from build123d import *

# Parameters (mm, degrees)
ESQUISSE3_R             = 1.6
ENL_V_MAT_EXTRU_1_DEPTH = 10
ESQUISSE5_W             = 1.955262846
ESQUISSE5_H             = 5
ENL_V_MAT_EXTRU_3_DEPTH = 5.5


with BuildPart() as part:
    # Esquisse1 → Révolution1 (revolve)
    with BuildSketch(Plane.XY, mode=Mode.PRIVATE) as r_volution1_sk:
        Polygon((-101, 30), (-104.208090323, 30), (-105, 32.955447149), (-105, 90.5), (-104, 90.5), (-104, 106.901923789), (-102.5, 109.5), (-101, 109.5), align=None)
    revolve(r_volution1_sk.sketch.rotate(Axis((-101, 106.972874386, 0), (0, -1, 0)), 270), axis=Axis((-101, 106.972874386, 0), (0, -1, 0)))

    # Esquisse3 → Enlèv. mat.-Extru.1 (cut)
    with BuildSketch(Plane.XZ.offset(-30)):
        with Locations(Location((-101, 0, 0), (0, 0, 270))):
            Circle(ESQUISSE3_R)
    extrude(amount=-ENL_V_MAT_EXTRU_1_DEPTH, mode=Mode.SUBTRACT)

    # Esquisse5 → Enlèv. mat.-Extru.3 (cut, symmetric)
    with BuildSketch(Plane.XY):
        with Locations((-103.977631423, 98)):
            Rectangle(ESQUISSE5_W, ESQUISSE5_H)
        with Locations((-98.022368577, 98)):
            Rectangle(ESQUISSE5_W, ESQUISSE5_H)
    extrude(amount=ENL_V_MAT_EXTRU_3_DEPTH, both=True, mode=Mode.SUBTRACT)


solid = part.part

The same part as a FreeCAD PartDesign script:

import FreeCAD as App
import Part
import Sketcher

V = App.Vector
Q = App.Units.Quantity


def add_polygon(sketch, points):
    """Adds a closed chain of lines whose ends are joined by coincident constraints."""
    first, n = sketch.GeometryCount, len(points)
    for a, b in zip(points, points[1:] + points[:1]):
        sketch.addGeometry(Part.LineSegment(App.Vector(*a, 0), App.Vector(*b, 0)), False)
    for i in range(n):
        sketch.addConstraint(Sketcher.Constraint("Coincident", first + i, 2, first + (i + 1) % n, 1))

doc = App.newDocument("Part")
body = doc.addObject("PartDesign::Body", "Body")

# Sketch on XY plane
sketch1 = doc.addObject("Sketcher::SketchObject", "Sketch")
body.addObject(sketch1)
sketch1.AttachmentSupport = (doc.XY_Plane, [""])
sketch1.MapMode = "FlatFace"
add_polygon(sketch1, [(-104.2, 30), (-101, 30), (-101, 109.5), (-102.5, 109.5), (-104, 106.9), (-104, 90.5), (-105, 90.5), (-105, 33)])  # lines 0-7
sketch1.addGeometry(Part.LineSegment(V(-101, 109.5, 0), V(-101, 30, 0)), True)  # axis
sketch1.addConstraint(Sketcher.Constraint("Horizontal", 0))
sketch1.addConstraint(Sketcher.Constraint("Vertical", 1))
sketch1.addConstraint(Sketcher.Constraint("Horizontal", 2))
sketch1.addConstraint(Sketcher.Constraint("Vertical", 4))
sketch1.addConstraint(Sketcher.Constraint("Horizontal", 5))
sketch1.addConstraint(Sketcher.Constraint("Vertical", 6))
sketch1.addConstraint(Sketcher.Constraint("Vertical", 8))
sketch1.addConstraint(Sketcher.Constraint("Coincident", 8, 1, 1, 2))
sketch1.addConstraint(Sketcher.Constraint("Horizontal", 7, 2, 8, 2))
sketch1.addConstraint(Sketcher.Constraint("DistanceX", 5, 2, 5, 1, Q("1 mm")))
sketch1.addConstraint(Sketcher.Constraint("Angle", 3, Q("-120 deg")))
sketch1.addConstraint(Sketcher.Constraint("Angle", 7, Q("-75 deg")))
sketch1.addConstraint(Sketcher.Constraint("Distance", 3, Q("3 mm")))
sketch1.addConstraint(Sketcher.Constraint("DistanceX", 2, 2, 2, 1, Q("1.5 mm")))
sketch1.addConstraint(Sketcher.Constraint("DistanceY", 1, 1, 1, 2, Q("79.5 mm")))
sketch1.addConstraint(Sketcher.Constraint("DistanceX", 0, 2, -1, 1, Q("101 mm")))
sketch1.addConstraint(Sketcher.Constraint("DistanceY", -1, 1, 0, 2, Q("30 mm")))
sketch1.addConstraint(Sketcher.Constraint("DistanceY", 4, 2, 2, 2, Q("19 mm")))
sketch1.addConstraint(Sketcher.Constraint("DistanceX", 0, 1, 0, 2, Q("3.20809 mm")))
revolution = doc.addObject("PartDesign::Revolution", "Revolution")
body.addObject(revolution)
revolution.Profile = sketch1
revolution.ReferenceAxis = (sketch1, ["Axis0"])
revolution.Angle = 360

# Sketch on XZ plane
sketch2 = doc.addObject("Sketcher::SketchObject", "Sketch001")
body.addObject(sketch2)
sketch2.AttachmentSupport = (doc.XZ_Plane, [""])
sketch2.MapMode = "FlatFace"
sketch2.AttachmentOffset = App.Placement(V(0, 0, -30), App.Rotation())
sketch2.addGeometry(Part.Circle(V(-101, 0, 0), V(0, 0, 1), 1.6), False)
sketch2.addConstraint(Sketcher.Constraint("PointOnObject", 0, 3, -1))
sketch2.addConstraint(Sketcher.Constraint("Diameter", 0, Q("3.2 mm")))
sketch2.addConstraint(Sketcher.Constraint("DistanceX", 0, 3, -1, 1, Q("101 mm")))
pocket1 = doc.addObject("PartDesign::Pocket", "Pocket")
body.addObject(pocket1)
pocket1.Profile = sketch2
pocket1.Length = 10

# Sketch on XY plane
sketch3 = doc.addObject("Sketcher::SketchObject", "Sketch002")
body.addObject(sketch3)
sketch3.AttachmentSupport = (doc.XY_Plane, [""])
sketch3.MapMode = "FlatFace"
add_polygon(sketch3, [(-105, 100.5), (-105, 95.5), (-103, 95.5), (-103, 100.5)])  # lines 0-3
add_polygon(sketch3, [(-99, 100.5), (-99, 95.5), (-97, 95.5), (-97, 100.5)])  # lines 4-7
sketch3.addConstraint(Sketcher.Constraint("Vertical", 0))
sketch3.addConstraint(Sketcher.Constraint("Horizontal", 1))
sketch3.addConstraint(Sketcher.Constraint("Vertical", 2))
sketch3.addConstraint(Sketcher.Constraint("Horizontal", 3))
sketch3.addConstraint(Sketcher.Constraint("Vertical", 4))
sketch3.addConstraint(Sketcher.Constraint("Horizontal", 5))
sketch3.addConstraint(Sketcher.Constraint("Vertical", 6))
sketch3.addConstraint(Sketcher.Constraint("Horizontal", 7))
sketch3.addConstraint(Sketcher.Constraint("Horizontal", 1, 2, 4, 2))
sketch3.addConstraint(Sketcher.Constraint("Horizontal", 3, 2, 6, 2))
sketch3.addConstraint(Sketcher.Constraint("Equal", 3, 5))
sketch3.addConstraint(Sketcher.Constraint("DistanceY", 0, 2, 0, 1, Q("5 mm")))
sketch3.addConstraint(Sketcher.Constraint("DistanceX", 1, 2, -1, 1, Q("103 mm")))
sketch3.addConstraint(Sketcher.Constraint("DistanceX", 4, 2, -1, 1, Q("99 mm")))
sketch3.addConstraint(Sketcher.Constraint("DistanceY", -1, 1, 0, 2, Q("95.5 mm")))
sketch3.addConstraint(Sketcher.Constraint("DistanceX", 1, 1, 1, 2, Q("1.955263 mm")))
pocket2 = doc.addObject("PartDesign::Pocket", "Pocket001")
body.addObject(pocket2)
pocket2.Profile = sketch3
pocket2.Length = 11
pocket2.Midplane = True

doc.recompute()
